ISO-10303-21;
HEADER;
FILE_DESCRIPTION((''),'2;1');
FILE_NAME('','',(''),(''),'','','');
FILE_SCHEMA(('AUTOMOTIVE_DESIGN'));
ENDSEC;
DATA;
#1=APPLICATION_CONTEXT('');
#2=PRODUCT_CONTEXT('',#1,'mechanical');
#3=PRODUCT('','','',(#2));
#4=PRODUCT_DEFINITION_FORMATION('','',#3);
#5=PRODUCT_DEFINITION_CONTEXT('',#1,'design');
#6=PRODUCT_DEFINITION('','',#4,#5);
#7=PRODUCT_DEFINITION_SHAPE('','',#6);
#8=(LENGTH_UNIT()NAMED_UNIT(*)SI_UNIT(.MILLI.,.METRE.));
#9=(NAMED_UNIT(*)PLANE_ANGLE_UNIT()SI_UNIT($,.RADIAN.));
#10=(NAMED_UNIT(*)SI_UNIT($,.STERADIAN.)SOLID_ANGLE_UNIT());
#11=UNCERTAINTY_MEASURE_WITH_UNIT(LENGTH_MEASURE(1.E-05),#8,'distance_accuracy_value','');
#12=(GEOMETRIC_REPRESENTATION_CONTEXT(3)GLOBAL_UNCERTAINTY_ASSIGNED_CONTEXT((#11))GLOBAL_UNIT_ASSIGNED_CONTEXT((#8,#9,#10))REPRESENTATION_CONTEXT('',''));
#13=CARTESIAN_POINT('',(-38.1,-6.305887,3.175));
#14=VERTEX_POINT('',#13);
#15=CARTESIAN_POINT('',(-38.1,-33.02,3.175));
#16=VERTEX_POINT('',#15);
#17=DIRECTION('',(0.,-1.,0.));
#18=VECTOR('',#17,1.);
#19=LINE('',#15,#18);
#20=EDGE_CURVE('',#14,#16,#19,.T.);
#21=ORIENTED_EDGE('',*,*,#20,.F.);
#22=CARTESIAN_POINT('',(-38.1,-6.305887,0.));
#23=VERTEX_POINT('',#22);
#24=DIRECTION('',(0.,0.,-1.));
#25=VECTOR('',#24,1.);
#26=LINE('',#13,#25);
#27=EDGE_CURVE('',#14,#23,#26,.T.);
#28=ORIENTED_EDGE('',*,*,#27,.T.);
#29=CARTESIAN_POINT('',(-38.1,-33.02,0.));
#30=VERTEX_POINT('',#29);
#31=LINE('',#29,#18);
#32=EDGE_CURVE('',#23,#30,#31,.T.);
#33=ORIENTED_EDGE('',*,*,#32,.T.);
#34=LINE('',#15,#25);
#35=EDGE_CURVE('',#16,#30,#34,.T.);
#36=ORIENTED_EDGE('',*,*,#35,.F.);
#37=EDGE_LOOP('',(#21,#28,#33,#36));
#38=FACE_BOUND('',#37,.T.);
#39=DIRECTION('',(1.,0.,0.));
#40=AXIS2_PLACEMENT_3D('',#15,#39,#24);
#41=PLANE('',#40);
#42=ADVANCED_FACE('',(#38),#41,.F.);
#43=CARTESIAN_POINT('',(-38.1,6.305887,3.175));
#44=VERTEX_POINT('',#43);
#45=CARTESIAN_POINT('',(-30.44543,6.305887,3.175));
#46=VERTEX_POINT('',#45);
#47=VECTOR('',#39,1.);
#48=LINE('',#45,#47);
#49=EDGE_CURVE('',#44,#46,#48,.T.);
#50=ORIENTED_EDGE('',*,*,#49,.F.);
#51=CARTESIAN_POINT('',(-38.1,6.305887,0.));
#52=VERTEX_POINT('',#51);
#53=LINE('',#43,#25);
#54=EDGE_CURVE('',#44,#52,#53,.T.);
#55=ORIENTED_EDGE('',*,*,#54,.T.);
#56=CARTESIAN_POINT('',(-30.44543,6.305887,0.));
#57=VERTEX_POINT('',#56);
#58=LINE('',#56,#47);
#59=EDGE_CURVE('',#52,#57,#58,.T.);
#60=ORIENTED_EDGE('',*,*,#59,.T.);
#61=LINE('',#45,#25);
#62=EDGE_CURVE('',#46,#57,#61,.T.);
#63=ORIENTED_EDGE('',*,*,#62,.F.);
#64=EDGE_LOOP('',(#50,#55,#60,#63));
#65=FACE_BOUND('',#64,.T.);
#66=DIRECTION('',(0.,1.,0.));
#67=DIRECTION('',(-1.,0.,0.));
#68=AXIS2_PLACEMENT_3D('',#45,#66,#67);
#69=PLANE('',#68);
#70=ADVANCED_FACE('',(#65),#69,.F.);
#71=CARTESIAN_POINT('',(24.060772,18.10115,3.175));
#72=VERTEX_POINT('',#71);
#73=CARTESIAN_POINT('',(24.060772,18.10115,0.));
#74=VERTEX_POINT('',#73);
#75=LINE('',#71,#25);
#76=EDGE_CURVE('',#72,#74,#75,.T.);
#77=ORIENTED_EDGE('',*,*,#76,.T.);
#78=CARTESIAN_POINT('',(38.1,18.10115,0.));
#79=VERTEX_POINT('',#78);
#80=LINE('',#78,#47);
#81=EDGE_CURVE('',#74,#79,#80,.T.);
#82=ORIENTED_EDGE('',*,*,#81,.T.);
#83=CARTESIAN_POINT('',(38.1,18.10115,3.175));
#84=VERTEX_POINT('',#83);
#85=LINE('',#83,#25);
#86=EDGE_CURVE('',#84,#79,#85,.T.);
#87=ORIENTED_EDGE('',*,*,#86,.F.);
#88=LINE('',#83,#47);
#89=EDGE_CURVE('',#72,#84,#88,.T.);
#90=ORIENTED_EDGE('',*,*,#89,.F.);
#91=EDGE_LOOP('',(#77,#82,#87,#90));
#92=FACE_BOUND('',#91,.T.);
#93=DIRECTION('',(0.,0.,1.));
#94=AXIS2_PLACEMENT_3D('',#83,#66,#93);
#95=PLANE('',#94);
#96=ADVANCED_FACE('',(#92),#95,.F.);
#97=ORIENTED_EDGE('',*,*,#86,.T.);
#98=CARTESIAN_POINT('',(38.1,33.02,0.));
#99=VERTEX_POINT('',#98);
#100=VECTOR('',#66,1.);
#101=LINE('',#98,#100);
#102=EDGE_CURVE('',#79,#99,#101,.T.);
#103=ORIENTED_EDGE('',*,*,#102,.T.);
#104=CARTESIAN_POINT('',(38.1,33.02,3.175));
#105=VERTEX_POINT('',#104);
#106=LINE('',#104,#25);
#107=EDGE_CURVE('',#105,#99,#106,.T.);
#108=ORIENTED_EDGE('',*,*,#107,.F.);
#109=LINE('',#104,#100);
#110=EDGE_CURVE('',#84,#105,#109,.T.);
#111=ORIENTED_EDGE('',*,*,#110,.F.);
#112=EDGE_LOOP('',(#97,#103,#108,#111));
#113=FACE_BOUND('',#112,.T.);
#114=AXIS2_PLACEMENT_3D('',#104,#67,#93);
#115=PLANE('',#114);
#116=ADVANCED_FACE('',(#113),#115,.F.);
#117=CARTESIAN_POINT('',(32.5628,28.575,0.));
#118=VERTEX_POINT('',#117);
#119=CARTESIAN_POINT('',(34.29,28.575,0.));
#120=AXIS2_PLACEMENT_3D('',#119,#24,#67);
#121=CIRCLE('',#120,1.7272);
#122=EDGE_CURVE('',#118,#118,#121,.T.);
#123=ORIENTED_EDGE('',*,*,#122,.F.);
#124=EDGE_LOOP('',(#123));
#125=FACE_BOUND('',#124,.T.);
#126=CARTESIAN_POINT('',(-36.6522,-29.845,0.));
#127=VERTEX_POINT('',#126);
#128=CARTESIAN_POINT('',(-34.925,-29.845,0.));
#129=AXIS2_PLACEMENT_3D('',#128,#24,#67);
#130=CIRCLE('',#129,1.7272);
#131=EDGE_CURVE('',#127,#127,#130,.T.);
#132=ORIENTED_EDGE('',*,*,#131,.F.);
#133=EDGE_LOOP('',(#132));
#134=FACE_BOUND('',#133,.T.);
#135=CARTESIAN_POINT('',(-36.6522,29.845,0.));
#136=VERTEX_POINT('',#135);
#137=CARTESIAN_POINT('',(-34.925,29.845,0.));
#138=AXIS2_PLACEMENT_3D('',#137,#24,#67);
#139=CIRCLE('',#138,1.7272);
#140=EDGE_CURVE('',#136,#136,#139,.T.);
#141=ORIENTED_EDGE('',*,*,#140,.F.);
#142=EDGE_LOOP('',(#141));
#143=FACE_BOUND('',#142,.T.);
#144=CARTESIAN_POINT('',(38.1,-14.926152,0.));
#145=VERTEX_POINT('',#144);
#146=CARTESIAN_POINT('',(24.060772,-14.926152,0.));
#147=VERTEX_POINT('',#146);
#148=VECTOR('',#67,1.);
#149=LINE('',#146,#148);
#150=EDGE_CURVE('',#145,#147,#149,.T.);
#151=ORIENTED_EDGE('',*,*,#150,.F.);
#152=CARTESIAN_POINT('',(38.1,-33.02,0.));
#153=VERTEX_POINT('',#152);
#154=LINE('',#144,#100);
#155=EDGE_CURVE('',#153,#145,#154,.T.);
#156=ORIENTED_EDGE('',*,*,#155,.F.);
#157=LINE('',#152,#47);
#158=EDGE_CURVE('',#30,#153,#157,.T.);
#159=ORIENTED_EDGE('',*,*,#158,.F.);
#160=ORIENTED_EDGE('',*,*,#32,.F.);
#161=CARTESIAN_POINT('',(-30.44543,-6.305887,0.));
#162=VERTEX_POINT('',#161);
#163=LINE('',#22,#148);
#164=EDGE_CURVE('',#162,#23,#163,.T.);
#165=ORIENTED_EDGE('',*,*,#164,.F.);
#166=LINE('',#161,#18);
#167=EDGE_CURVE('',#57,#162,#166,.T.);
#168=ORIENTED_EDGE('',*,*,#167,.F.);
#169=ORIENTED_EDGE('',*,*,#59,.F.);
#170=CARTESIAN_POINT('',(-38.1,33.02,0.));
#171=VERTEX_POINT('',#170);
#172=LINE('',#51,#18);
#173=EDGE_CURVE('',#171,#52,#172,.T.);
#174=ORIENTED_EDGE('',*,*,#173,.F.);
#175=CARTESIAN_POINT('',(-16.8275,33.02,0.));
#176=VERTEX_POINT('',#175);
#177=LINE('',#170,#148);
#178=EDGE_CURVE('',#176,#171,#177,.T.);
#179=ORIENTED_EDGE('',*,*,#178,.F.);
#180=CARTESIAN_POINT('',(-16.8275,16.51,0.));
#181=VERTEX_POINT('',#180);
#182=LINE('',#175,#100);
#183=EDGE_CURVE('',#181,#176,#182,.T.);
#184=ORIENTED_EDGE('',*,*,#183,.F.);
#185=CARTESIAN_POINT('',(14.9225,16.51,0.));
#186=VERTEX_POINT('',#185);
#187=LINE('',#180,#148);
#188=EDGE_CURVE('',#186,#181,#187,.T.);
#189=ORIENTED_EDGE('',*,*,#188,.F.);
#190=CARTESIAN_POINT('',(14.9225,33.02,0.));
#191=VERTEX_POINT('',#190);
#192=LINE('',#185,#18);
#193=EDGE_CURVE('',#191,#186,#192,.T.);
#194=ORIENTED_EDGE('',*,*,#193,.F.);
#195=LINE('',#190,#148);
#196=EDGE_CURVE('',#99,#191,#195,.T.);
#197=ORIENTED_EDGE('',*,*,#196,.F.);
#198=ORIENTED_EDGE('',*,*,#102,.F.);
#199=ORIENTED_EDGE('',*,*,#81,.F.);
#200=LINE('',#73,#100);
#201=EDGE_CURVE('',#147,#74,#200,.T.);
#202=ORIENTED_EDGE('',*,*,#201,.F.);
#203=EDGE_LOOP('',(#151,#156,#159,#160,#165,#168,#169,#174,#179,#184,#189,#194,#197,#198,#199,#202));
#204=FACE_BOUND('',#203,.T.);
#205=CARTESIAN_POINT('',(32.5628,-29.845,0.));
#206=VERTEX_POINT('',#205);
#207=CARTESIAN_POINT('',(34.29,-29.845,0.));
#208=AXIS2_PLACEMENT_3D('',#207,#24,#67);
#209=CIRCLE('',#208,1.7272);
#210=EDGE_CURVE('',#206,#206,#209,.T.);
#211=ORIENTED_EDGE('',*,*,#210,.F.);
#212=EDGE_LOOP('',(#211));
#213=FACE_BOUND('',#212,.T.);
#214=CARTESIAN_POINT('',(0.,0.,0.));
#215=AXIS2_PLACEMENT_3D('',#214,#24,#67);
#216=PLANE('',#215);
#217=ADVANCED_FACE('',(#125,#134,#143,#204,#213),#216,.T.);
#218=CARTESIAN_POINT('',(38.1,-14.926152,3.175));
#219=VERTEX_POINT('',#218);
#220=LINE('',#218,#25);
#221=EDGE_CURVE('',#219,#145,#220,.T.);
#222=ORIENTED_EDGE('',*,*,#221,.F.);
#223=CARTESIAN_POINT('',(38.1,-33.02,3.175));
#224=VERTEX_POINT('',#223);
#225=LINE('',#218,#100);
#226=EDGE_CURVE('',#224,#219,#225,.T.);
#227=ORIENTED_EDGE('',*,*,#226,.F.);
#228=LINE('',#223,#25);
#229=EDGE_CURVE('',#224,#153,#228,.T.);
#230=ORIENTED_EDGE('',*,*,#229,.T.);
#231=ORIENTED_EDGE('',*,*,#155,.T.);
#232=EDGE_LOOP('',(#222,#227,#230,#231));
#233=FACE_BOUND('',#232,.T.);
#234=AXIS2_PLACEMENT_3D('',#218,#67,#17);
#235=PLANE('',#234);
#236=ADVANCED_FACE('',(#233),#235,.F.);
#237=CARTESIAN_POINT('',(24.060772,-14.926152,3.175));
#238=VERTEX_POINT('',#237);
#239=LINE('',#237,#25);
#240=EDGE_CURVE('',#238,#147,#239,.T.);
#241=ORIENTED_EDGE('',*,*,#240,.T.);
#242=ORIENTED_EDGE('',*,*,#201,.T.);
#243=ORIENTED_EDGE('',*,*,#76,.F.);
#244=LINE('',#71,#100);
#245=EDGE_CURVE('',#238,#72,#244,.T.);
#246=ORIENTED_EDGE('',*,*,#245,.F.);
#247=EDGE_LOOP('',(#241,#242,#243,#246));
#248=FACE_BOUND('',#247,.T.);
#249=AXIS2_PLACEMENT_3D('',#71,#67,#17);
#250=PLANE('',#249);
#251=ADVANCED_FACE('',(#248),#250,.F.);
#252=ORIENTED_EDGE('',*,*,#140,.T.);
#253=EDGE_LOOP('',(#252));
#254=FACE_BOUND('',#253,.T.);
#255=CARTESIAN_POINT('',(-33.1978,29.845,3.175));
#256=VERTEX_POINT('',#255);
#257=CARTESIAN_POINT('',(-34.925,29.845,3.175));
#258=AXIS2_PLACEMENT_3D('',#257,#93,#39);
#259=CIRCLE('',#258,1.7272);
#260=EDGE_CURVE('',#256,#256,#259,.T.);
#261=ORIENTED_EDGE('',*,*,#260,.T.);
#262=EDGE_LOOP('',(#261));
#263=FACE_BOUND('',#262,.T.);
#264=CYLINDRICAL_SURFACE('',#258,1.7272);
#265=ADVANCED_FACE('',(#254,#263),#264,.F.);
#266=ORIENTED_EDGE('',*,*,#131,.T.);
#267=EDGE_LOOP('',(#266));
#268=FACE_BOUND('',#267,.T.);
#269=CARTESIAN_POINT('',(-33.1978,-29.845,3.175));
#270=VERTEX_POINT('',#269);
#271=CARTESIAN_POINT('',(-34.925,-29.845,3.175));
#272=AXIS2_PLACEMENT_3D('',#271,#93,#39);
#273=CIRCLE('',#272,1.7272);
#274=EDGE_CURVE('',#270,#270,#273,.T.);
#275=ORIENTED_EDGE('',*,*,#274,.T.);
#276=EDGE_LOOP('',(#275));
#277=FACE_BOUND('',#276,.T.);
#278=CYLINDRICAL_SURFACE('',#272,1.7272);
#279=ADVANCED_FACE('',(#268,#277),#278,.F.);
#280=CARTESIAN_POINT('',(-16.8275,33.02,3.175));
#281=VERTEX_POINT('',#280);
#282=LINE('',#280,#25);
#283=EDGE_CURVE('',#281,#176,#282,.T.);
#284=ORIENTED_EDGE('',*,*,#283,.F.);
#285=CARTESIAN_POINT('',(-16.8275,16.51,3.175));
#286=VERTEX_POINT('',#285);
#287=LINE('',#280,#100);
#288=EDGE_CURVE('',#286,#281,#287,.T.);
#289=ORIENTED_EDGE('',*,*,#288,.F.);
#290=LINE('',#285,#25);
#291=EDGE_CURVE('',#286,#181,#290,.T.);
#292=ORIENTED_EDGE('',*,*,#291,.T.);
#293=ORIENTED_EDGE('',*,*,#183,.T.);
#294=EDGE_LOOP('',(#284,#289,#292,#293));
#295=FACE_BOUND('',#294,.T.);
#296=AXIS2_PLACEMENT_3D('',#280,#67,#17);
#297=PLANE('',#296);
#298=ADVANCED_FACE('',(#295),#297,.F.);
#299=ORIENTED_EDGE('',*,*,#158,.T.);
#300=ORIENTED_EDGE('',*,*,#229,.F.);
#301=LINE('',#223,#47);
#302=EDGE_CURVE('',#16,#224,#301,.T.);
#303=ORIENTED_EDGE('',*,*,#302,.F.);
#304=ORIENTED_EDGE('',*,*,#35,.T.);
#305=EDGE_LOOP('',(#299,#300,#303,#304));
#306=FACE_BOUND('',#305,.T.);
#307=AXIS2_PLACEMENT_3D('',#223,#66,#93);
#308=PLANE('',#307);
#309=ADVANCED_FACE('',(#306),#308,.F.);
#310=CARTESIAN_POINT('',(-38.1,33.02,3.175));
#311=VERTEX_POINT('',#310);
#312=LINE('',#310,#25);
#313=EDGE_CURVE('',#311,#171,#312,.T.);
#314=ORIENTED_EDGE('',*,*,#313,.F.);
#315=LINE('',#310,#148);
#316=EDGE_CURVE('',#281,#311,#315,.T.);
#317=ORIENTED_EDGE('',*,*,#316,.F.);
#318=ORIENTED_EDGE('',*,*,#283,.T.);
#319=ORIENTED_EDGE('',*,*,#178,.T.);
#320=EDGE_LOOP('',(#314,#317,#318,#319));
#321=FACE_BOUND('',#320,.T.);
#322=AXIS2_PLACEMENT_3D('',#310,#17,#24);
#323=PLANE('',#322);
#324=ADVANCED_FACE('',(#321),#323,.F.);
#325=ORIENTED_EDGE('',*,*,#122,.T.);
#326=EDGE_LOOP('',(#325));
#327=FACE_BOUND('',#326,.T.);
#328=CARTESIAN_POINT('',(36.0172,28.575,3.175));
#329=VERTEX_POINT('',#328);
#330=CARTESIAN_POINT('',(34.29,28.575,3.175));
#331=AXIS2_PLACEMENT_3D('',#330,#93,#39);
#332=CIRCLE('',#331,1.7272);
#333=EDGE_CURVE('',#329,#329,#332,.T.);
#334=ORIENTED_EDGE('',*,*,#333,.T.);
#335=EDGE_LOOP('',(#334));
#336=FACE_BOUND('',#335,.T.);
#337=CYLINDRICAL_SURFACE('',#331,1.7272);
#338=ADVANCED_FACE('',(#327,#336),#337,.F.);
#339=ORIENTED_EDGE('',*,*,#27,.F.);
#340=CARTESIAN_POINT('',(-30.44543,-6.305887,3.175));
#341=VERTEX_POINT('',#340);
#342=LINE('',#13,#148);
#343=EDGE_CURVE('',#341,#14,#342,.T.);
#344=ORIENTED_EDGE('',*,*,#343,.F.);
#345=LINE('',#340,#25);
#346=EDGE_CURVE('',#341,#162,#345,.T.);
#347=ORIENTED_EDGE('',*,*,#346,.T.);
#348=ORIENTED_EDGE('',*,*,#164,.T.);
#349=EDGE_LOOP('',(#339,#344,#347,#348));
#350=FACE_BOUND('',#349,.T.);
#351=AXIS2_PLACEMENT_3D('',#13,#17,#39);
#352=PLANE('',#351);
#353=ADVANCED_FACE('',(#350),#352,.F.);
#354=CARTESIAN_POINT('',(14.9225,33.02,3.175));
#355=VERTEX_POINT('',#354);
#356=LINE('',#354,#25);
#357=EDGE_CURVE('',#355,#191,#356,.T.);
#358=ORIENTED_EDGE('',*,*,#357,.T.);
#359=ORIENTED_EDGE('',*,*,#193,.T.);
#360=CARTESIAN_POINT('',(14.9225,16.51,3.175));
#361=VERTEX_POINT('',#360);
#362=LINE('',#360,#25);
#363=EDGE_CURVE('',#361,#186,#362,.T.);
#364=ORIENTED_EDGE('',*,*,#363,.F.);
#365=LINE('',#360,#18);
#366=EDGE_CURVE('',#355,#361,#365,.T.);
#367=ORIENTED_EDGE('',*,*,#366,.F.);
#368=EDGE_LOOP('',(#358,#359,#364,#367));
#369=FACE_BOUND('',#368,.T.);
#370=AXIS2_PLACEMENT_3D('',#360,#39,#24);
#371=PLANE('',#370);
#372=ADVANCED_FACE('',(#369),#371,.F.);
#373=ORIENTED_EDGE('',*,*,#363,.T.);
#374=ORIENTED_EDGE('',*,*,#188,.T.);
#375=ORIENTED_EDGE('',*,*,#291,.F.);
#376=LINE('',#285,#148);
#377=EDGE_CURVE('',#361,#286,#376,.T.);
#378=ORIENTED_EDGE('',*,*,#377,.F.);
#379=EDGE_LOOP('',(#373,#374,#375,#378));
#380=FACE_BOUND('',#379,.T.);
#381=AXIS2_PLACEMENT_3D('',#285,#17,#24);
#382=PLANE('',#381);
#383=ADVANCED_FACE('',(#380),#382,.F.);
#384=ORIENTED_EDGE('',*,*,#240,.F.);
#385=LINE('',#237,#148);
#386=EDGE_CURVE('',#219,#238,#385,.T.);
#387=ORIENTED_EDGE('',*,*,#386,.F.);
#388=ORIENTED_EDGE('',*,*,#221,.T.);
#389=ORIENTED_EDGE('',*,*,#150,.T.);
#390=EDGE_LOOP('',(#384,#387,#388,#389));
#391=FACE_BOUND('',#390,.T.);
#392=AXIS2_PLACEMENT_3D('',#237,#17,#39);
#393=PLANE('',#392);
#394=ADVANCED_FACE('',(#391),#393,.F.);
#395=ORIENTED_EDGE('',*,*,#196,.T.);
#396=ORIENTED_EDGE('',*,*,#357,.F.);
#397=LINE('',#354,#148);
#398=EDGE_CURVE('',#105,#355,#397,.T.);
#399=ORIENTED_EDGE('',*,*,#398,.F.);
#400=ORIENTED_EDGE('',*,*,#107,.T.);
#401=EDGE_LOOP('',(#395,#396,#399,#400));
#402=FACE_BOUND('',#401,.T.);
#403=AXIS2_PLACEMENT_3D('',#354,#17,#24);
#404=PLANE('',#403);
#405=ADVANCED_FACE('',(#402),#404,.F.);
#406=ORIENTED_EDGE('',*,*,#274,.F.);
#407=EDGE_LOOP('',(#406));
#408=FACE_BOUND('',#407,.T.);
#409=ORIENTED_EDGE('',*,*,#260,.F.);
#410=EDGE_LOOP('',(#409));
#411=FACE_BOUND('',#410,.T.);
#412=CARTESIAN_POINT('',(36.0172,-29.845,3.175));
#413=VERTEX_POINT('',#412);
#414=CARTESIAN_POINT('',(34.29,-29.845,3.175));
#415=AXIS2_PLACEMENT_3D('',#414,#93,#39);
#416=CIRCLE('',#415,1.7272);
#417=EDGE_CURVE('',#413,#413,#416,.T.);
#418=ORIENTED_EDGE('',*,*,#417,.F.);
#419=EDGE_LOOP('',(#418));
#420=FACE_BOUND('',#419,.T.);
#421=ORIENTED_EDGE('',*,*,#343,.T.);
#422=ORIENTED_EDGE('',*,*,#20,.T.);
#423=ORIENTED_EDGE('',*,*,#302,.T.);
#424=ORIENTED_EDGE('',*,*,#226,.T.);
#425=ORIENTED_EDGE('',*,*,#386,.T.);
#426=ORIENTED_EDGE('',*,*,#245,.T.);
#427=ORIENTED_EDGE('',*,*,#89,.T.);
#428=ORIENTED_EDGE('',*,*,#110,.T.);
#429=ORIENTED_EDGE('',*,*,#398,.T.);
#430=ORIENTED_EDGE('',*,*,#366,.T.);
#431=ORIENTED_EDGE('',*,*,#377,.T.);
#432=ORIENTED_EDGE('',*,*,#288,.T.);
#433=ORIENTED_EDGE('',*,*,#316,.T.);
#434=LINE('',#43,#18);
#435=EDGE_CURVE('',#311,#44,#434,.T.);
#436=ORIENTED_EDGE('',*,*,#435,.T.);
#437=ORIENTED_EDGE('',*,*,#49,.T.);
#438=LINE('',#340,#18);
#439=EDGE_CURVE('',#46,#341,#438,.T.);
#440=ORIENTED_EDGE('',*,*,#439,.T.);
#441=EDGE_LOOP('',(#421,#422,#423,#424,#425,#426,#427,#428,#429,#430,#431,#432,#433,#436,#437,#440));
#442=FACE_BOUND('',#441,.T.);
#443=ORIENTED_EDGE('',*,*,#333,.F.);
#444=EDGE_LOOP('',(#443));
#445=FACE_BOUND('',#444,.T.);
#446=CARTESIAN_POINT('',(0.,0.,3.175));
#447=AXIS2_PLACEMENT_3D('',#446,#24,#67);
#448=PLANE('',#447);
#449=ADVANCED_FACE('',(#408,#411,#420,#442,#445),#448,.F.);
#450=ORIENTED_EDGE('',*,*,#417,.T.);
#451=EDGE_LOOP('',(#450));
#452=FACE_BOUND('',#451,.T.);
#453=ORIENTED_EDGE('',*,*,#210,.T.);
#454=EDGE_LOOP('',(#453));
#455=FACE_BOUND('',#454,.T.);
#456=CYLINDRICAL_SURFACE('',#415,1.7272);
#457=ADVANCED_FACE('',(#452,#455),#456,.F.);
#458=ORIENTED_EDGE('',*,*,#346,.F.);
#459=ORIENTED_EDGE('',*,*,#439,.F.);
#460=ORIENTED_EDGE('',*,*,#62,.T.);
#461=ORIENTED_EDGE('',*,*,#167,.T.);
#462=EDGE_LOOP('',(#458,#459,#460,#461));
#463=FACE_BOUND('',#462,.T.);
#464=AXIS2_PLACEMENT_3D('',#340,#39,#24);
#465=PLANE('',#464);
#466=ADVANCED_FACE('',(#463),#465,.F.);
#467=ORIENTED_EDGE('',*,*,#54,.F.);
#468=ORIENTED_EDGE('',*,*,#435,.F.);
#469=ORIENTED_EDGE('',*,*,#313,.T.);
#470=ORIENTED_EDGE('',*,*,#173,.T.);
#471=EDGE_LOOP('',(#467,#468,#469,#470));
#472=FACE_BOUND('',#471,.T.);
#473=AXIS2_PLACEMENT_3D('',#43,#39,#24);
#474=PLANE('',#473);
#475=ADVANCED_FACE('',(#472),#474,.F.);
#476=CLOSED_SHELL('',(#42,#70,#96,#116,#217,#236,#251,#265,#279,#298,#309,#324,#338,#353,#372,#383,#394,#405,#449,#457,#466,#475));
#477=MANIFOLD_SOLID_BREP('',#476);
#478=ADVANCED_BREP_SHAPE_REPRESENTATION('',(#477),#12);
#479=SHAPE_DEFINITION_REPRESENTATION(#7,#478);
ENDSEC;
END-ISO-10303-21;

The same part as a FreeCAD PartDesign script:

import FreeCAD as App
import Part
import Sketcher
Q = App.Units.Quantity


def add_polygon(sketch, points):
    """Adds a closed chain of lines whose ends are joined by coincident constraints."""
    first, n = sketch.GeometryCount, len(points)
    for a, b in zip(points, points[1:] + points[:1]):
        sketch.addGeometry(Part.LineSegment(App.Vector(*a, 0), App.Vector(*b, 0)), False)
    for i in range(n):
        sketch.addConstraint(Sketcher.Constraint("Coincident", first + i, 2, first + (i + 1) % n, 1))

doc = App.newDocument("Part")
body = doc.addObject("PartDesign::Body", "Body")

# Sketch on XY plane
sketch1 = body.newObject("Sketcher::SketchObject", "Sketch")
sketch1.AttachmentSupport = (doc.getObject("XY_Plane"), [""])
sketch1.MapMode = "FlatFace"
add_polygon(sketch1, [(-17, 33), (-38, 33), (-38, 6), (-30, 6), (-30, -6), (-38, -6), (-38, -33), (38, -33), (38, -15), (24, -15), (24, 18), (38, 18), (38, 33), (15, 33), (15, 17), (-17, 17)])  # lines 0-15
sketch1.addConstraint(Sketcher.Constraint("Horizontal", 0))
sketch1.addConstraint(Sketcher.Constraint("Vertical", 1))
sketch1.addConstraint(Sketcher.Constraint("Horizontal", 2))
sketch1.addConstraint(Sketcher.Constraint("Vertical", 3))
sketch1.addConstraint(Sketcher.Constraint("Horizontal", 4))
sketch1.addConstraint(Sketcher.Constraint("Vertical", 5))
sketch1.addConstraint(Sketcher.Constraint("Horizontal", 6))
sketch1.addConstraint(Sketcher.Constraint("Vertical", 7))
sketch1.addConstraint(Sketcher.Constraint("Horizontal", 8))
sketch1.addConstraint(Sketcher.Constraint("Vertical", 9))
sketch1.addConstraint(Sketcher.Constraint("Horizontal", 10))
sketch1.addConstraint(Sketcher.Constraint("Vertical", 11))
sketch1.addConstraint(Sketcher.Constraint("Horizontal", 12))
sketch1.addConstraint(Sketcher.Constraint("Vertical", 13))
sketch1.addConstraint(Sketcher.Constraint("Horizontal", 14))
sketch1.addConstraint(Sketcher.Constraint("Vertical", 15))
sketch1.addConstraint(Sketcher.Constraint("Symmetric", 0, 2, 6, 2, -1, 1))
sketch1.addConstraint(Sketcher.Constraint("Symmetric", 5, 2, 11, 2, -1, 1))
sketch1.addConstraint(Sketcher.Constraint("Symmetric", 1, 2, 4, 2, -1))
sketch1.addConstraint(Sketcher.Constraint("DistanceX", 6, 1, 6, 2, Q("3 in")))
sketch1.addConstraint(Sketcher.Constraint("DistanceX", 14, 2, 14, 1, Q("1.25 in")))
sketch1.addConstraint(Sketcher.Constraint("DistanceY", 13, 2, 13, 1, Q("0.65 in")))
sketch1.addConstraint(Sketcher.Constraint("DistanceY", -1, 1, 0, 2, Q("1.3 in")))
sketch1.addConstraint(Sketcher.Constraint("DistanceX", 0, 2, 0, 1, Q("0.8375 in")))
sketch1.addConstraint(Sketcher.Constraint("DistanceX", 2, 1, 2, 2, Q("7.65457 mm")))
sketch1.addConstraint(Sketcher.Constraint("DistanceY", 11, 1, 11, 2, Q("14.91885 mm")))
sketch1.addConstraint(Sketcher.Constraint("DistanceX", 8, 2, 8, 1, Q("14.039228 mm")))
sketch1.addConstraint(Sketcher.Constraint("DistanceY", 1, 2, 1, 1, Q("26.714113 mm")))
sketch1.addConstraint(Sketcher.Constraint("DistanceY", 7, 1, 7, 2, Q("18.093848 mm")))
pad1 = body.newObject("PartDesign::Pad", "Pad")
pad1.Profile = sketch1
pad1.Length = Q("0.125 in")

# Sketch on XY plane
sketch2 = body.newObject("Sketcher::SketchObject", "Sketch001")
sketch2.AttachmentSupport = (doc.getObject("XY_Plane"), [""])
sketch2.MapMode = "FlatFace"
sketch2.AttachmentOffset = App.Placement(App.Vector(0, 0, 0.125 * 25.4), App.Rotation())
sketch2.addGeometry(Part.Circle(App.Vector(-34.9, 29.8, 0), App.Vector(0, 0, 1), 1.7), False)
sketch2.addGeometry(Part.Circle(App.Vector(34.3, 28.6, 0), App.Vector(0, 0, 1), 1.7), False)
sketch2.addGeometry(Part.Circle(App.Vector(-34.9, -29.8, 0), App.Vector(0, 0, 1), 1.7), False)
sketch2.addGeometry(Part.Circle(App.Vector(34.3, -29.8, 0), App.Vector(0, 0, 1), 1.7), False)
sketch2.addConstraint(Sketcher.Constraint("Equal", 0, 1))
sketch2.addConstraint(Sketcher.Constraint("Equal", 1, 2))
sketch2.addConstraint(Sketcher.Constraint("Equal", 2, 3))
sketch2.addConstraint(Sketcher.Constraint("Symmetric", 0, 3, 2, 3, -1))
sketch2.addConstraint(Sketcher.Constraint("Horizontal", 2, 3, 3, 3))
sketch2.addConstraint(Sketcher.Constraint("Vertical", 1, 3, 3, 3))
sketch2.addConstraint(Sketcher.Constraint("Diameter", 0, Q("0.136 in")))
sketch2.addConstraint(Sketcher.Constraint("DistanceY", 2, 3, 1, 3, Q("2.3 in")))
sketch2.addConstraint(Sketcher.Constraint("DistanceX", -1, 1, 1, 3, Q("1.35 in")))
sketch2.addConstraint(Sketcher.Constraint("DistanceY", 1, 3, 0, 3, Q("0.05 in")))
sketch2.addConstraint(Sketcher.Constraint("DistanceX", 0, 3, -1, 1, Q("1.375 in")))
doc.recompute()
hole = body.newObject("PartDesign::Hole", "Hole")
hole.Profile = sketch2
hole.ThreadType = "None"
hole.Diameter = Q("0.136 in")
hole.DepthType = "Dimension"
hole.Depth = Q("0.4 in")
hole.DrillPoint = "Angled"
hole.DrillPointAngle = 118

doc.recompute()
